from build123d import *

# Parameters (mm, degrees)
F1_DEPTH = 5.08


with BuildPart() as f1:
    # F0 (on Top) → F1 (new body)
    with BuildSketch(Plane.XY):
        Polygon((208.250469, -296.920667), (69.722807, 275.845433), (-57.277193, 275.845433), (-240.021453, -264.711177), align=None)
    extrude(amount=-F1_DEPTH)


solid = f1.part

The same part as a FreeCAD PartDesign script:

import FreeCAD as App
import Part
import Sketcher
Q = App.Units.Quantity


def add_polygon(sketch, points):
    """Adds a closed chain of lines whose ends are joined by coincident constraints."""
    first, n = sketch.GeometryCount, len(points)
    for a, b in zip(points, points[1:] + points[:1]):
        sketch.addGeometry(Part.LineSegment(App.Vector(*a, 0), App.Vector(*b, 0)), False)
    for i in range(n):
        sketch.addConstraint(Sketcher.Constraint("Coincident", first + i, 2, first + (i + 1) % n, 1))

doc = App.newDocument("Part")
body = doc.addObject("PartDesign::Body", "Body")

sketch1 = body.newObject("Sketcher::SketchObject", "Sketch")
sketch1.AttachmentSupport = (doc.getObject("XY_Plane"), [""])
sketch1.MapMode = "FlatFace"
add_polygon(sketch1, [(208.250469, -296.920667), (69.722807, 275.845433), (-57.277193, 275.845433), (-240.021453, -264.711177)])
sketch1.addConstraint([
    Sketcher.Constraint("Horizontal", 1),
    Sketcher.Constraint("DistanceX", 1, 2, 1, 1, Q("5 in")),
    Sketcher.Constraint("Distance", 0, Q("23.2 in")),
    Sketcher.Constraint("Distance", 2, Q("22.465 in")),
    Sketcher.Constraint("Distance", 3, Q("17.694 in")),
    Sketcher.Constraint("DistanceY", 2, 2, -1, 1, Q("10.4216999 in")),
    Sketcher.Constraint("DistanceY", 3, 2, 0, 2, Q("572.7661 mm")),
    Sketcher.Constraint("DistanceX", -1, 1, 3, 2, Q("208.250469 mm")),
])
pad1 = body.newObject("PartDesign::Pad", "Pad")
pad1.Profile = sketch1
pad1.Length = Q("0.2 in")
pad1.Reversed = True

doc.recompute()
